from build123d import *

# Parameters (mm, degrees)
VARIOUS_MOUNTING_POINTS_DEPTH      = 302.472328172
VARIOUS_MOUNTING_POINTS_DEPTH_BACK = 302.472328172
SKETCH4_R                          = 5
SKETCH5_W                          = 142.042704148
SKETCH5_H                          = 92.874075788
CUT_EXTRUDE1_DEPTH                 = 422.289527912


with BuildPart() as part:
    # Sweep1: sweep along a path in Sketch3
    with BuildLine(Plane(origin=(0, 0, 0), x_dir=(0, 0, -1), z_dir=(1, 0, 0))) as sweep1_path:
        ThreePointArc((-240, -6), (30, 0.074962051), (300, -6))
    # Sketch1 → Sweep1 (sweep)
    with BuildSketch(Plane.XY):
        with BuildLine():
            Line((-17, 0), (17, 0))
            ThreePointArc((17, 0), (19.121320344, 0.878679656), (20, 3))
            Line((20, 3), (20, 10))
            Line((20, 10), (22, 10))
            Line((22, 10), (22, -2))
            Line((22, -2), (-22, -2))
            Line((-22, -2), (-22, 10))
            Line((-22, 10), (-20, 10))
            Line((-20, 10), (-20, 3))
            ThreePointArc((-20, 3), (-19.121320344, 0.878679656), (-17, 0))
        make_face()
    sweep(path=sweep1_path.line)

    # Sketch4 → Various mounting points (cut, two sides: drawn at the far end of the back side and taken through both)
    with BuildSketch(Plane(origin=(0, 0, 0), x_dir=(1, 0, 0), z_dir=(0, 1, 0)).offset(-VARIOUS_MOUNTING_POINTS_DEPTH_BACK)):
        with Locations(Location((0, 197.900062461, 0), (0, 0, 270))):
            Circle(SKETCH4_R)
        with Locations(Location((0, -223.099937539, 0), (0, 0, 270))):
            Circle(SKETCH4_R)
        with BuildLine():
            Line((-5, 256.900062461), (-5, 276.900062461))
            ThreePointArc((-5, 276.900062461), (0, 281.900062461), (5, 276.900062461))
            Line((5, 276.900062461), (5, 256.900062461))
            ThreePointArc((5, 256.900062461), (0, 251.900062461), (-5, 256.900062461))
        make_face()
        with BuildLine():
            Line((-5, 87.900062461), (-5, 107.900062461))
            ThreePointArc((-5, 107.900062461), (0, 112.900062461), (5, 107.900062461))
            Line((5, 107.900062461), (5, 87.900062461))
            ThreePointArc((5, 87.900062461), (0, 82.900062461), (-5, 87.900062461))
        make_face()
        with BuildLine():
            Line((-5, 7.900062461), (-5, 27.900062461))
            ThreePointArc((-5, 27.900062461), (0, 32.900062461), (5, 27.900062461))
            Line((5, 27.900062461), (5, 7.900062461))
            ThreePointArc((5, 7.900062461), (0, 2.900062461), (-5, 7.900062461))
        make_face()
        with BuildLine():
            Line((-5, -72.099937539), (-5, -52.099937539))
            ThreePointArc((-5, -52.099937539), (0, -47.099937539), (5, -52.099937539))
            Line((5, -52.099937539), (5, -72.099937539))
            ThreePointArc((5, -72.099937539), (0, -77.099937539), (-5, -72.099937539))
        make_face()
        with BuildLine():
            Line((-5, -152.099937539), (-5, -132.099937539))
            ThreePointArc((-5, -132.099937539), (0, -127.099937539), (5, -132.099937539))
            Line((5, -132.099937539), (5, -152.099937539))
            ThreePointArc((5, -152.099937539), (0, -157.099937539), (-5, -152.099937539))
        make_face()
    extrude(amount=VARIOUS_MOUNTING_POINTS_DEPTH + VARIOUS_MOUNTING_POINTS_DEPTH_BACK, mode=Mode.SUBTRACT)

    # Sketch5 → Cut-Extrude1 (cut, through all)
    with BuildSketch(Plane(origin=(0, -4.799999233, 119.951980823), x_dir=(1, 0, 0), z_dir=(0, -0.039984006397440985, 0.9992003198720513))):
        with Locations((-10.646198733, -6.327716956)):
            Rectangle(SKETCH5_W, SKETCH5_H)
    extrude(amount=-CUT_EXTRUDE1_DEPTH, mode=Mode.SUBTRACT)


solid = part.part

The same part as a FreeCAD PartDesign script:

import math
import FreeCAD as App
import Part
import Sketcher

V = App.Vector
Q = App.Units.Quantity


def add_polygon(sketch, points):
    """Adds a closed chain of lines whose ends are joined by coincident constraints."""
    first, n = sketch.GeometryCount, len(points)
    for a, b in zip(points, points[1:] + points[:1]):
        sketch.addGeometry(Part.LineSegment(App.Vector(*a, 0), App.Vector(*b, 0)), False)
    for i in range(n):
        sketch.addConstraint(Sketcher.Constraint("Coincident", first + i, 2, first + (i + 1) % n, 1))

doc = App.newDocument("Part")
body = doc.addObject("PartDesign::Body", "Body")

# Sketch on XY plane
sketch1 = doc.addObject("Sketcher::SketchObject", "Sketch")
body.addObject(sketch1)
sketch1.AttachmentSupport = (doc.XY_Plane, [""])
sketch1.MapMode = "FlatFace"
sketch1.addGeometry([
    Part.LineSegment(V(17, 0, 0), V(-17, 0, 0)),  # 0
    Part.ArcOfCircle(Part.Circle(V(-17, 3, 0), V(0, 0, 1), 3), math.radians(180), math.radians(270)),  # 1
    Part.LineSegment(V(-20, 3, 0), V(-20, 10, 0)),  # 2
    Part.LineSegment(V(-20, 10, 0), V(-22, 10, 0)),  # 3
    Part.LineSegment(V(-22, 10, 0), V(-22, -2, 0)),  # 4
    Part.LineSegment(V(-22, -2, 0), V(22, -2, 0)),  # 5
    Part.LineSegment(V(22, -2, 0), V(22, 10, 0)),  # 6
    Part.LineSegment(V(22, 10, 0), V(20, 10, 0)),  # 7
    Part.LineSegment(V(20, 10, 0), V(20, 3, 0)),  # 8
    Part.ArcOfCircle(Part.Circle(V(17, 3, 0), V(0, 0, 1), 3), math.radians(-90), math.radians(0)),  # 9
], False)
sketch1.addConstraint([
    Sketcher.Constraint("Tangent", 0, 2, 1, 2),
    Sketcher.Constraint("Tangent", 1, 1, 2, 1),
    Sketcher.Constraint("Coincident", 2, 2, 3, 1),
    Sketcher.Constraint("Coincident", 3, 2, 4, 1),
    Sketcher.Constraint("Coincident", 4, 2, 5, 1),
    Sketcher.Constraint("Coincident", 5, 2, 6, 1),
    Sketcher.Constraint("Coincident", 6, 2, 7, 1),
    Sketcher.Constraint("Coincident", 7, 2, 8, 1),
    Sketcher.Constraint("Tangent", 8, 2, 9, 2),
    Sketcher.Constraint("Tangent", 9, 1, 0, 1),
    Sketcher.Constraint("Horizontal", 0),
    Sketcher.Constraint("Vertical", 2),
    Sketcher.Constraint("Horizontal", 3),
    Sketcher.Constraint("Vertical", 4),
    Sketcher.Constraint("Horizontal", 5),
    Sketcher.Constraint("Vertical", 6),
    Sketcher.Constraint("Horizontal", 7),
    Sketcher.Constraint("Vertical", 8),
    Sketcher.Constraint("Equal", 1, 9),
    Sketcher.Constraint("Symmetric", 0, 2, 9, 1, -1, 1),
    Sketcher.Constraint("Symmetric", 3, 2, 6, 2, -2),
    Sketcher.Constraint("Radius", 1, Q("3 mm")),
    Sketcher.Constraint("DistanceX", 0, 2, 0, 1, Q("34 mm")),
    Sketcher.Constraint("DistanceX", 3, 2, 3, 1, Q("2 mm")),
    Sketcher.Constraint("DistanceY", 2, 1, 2, 2, Q("7 mm")),
    Sketcher.Constraint("DistanceY", 4, 2, 4, 1, Q("12 mm")),
])

# Sketch on YZ plane
sketch2 = doc.addObject("Sketcher::SketchObject", "Sketch001")
body.addObject(sketch2)
sketch2.AttachmentSupport = (doc.YZ_Plane, [""])
sketch2.MapMode = "FlatFace"
sketch2.addGeometry(Part.ArcOfCircle(Part.Circle(V(-6003, -30, 0), V(0, 0, 1), 6003), math.radians(-2.58), math.radians(2.58)), False)
sketch2.addConstraint([
    Sketcher.Constraint("DistanceX", 0, 3, -1, 1, Q("6003 mm")),
    Sketcher.Constraint("DistanceY", 0, 3, -1, 1, Q("30 mm")),
    Sketcher.Constraint("DistanceX", 0, 1, -1, 1, Q("6 mm")),
    Sketcher.Constraint("DistanceY", 0, 1, -1, 1, Q("300 mm")),
    Sketcher.Constraint("DistanceX", 0, 2, -1, 1, Q("6 mm")),
])
doc.recompute()

additivepipe = doc.addObject("PartDesign::AdditivePipe", "AdditivePipe")
body.addObject(additivepipe)
additivepipe.Profile = sketch1
additivepipe.Spine = (sketch2, ["Edge1"])

# Sketch on XZ plane
sketch3 = doc.addObject("Sketcher::SketchObject", "Sketch002")
body.addObject(sketch3)
sketch3.AttachmentSupport = (doc.XZ_Plane, [""])
sketch3.MapMode = "FlatFace"
sketch3.addGeometry([
    Part.Circle(V(0, -198, 0), V(0, 0, 1), 5),  # 0
    Part.Circle(V(0, 223, 0), V(0, 0, 1), 5),  # 1
    Part.LineSegment(V(-5, -277, 0), V(-5, -257, 0)),  # 2
    Part.ArcOfCircle(Part.Circle(V(0, -257, 0), V(0, 0, 1), 5), math.radians(0), math.radians(180)),  # 3
    Part.LineSegment(V(5, -257, 0), V(5, -277, 0)),  # 4
    Part.ArcOfCircle(Part.Circle(V(0, -277, 0), V(0, 0, 1), 5), math.radians(180), math.radians(360)),  # 5
    Part.LineSegment(V(-5, -108, 0), V(-5, -88, 0)),  # 6
    Part.ArcOfCircle(Part.Circle(V(0, -88, 0), V(0, 0, 1), 5), math.radians(0), math.radians(180)),  # 7
    Part.LineSegment(V(5, -88, 0), V(5, -108, 0)),  # 8
    Part.ArcOfCircle(Part.Circle(V(0, -108, 0), V(0, 0, 1), 5), math.radians(180), math.radians(360)),  # 9
    Part.LineSegment(V(-5, -28, 0), V(-5, -8, 0)),  # 10
    Part.ArcOfCircle(Part.Circle(V(0, -8, 0), V(0, 0, 1), 5), math.radians(0), math.radians(180)),  # 11
    Part.LineSegment(V(5, -8, 0), V(5, -28, 0)),  # 12
    Part.ArcOfCircle(Part.Circle(V(0, -28, 0), V(0, 0, 1), 5), math.radians(180), math.radians(360)),  # 13
    Part.LineSegment(V(-5, 52, 0), V(-5, 72, 0)),  # 14
    Part.ArcOfCircle(Part.Circle(V(0, 72, 0), V(0, 0, 1), 5), math.radians(0), math.radians(180)),  # 15
    Part.LineSegment(V(5, 72, 0), V(5, 52, 0)),  # 16
    Part.ArcOfCircle(Part.Circle(V(0, 52, 0), V(0, 0, 1), 5), math.radians(180), math.radians(360)),  # 17
    Part.LineSegment(V(-5, 132, 0), V(-5, 152, 0)),  # 18
    Part.ArcOfCircle(Part.Circle(V(0, 152, 0), V(0, 0, 1), 5), math.radians(0), math.radians(180)),  # 19
    Part.LineSegment(V(5, 152, 0), V(5, 132, 0)),  # 20
    Part.ArcOfCircle(Part.Circle(V(0, 132, 0), V(0, 0, 1), 5), math.radians(180), math.radians(360)),  # 21
], False)
sketch3.addConstraint([
    Sketcher.Constraint("Tangent", 2, 2, 3, 2),
    Sketcher.Constraint("Tangent", 3, 1, 4, 1),
    Sketcher.Constraint("Tangent", 4, 2, 5, 2),
    Sketcher.Constraint("Tangent", 5, 1, 2, 1),
    Sketcher.Constraint("Tangent", 6, 2, 7, 2),
    Sketcher.Constraint("Tangent", 7, 1, 8, 1),
    Sketcher.Constraint("Tangent", 8, 2, 9, 2),
    Sketcher.Constraint("Tangent", 9, 1, 6, 1),
    Sketcher.Constraint("Tangent", 10, 2, 11, 2),
    Sketcher.Constraint("Tangent", 11, 1, 12, 1),
    Sketcher.Constraint("Tangent", 12, 2, 13, 2),
    Sketcher.Constraint("Tangent", 13, 1, 10, 1),
    Sketcher.Constraint("Tangent", 14, 2, 15, 2),
    Sketcher.Constraint("Tangent", 15, 1, 16, 1),
    Sketcher.Constraint("Tangent", 16, 2, 17, 2),
    Sketcher.Constraint("Tangent", 17, 1, 14, 1),
    Sketcher.Constraint("Tangent", 18, 2, 19, 2),
    Sketcher.Constraint("Tangent", 19, 1, 20, 1),
    Sketcher.Constraint("Tangent", 20, 2, 21, 2),
    Sketcher.Constraint("Tangent", 21, 1, 18, 1),
    Sketcher.Constraint("Vertical", 2),
    Sketcher.Constraint("Vertical", 4),
    Sketcher.Constraint("Vertical", 6),
    Sketcher.Constraint("Vertical", 8),
    Sketcher.Constraint("Vertical", 10),
    Sketcher.Constraint("Vertical", 12),
    Sketcher.Constraint("Vertical", 14),
    Sketcher.Constraint("Vertical", 16),
    Sketcher.Constraint("Vertical", 18),
    Sketcher.Constraint("Vertical", 20),
    Sketcher.Constraint("Equal", 0, 1),
    Sketcher.Constraint("Equal", 1, 3),
    Sketcher.Constraint("Equal", 5, 7),
    Sketcher.Constraint("Equal", 9, 11),
    Sketcher.Constraint("Equal", 13, 15),
    Sketcher.Constraint("Equal", 17, 19),
    Sketcher.Constraint("PointOnObject", 0, 3, -2),
    Sketcher.Constraint("PointOnObject", 1, 3, -2),
    Sketcher.Constraint("PointOnObject", 3, 3, -2),
    Sketcher.Constraint("PointOnObject", 7, 3, -2),
    Sketcher.Constraint("PointOnObject", 11, 3, -2),
    Sketcher.Constraint("PointOnObject", 15, 3, -2),
    Sketcher.Constraint("PointOnObject", 19, 3, -2),
    Sketcher.Constraint("Equal", 4, 6),
    Sketcher.Constraint("Equal", 8, 10),
    Sketcher.Constraint("Equal", 12, 14),
    Sketcher.Constraint("Equal", 16, 18),
    Sketcher.Constraint("Diameter", 0, Q("10 mm")),
    Sketcher.Constraint("DistanceY", 2, 1, 2, 2, Q("20 mm")),
    Sketcher.Constraint("DistanceY", 0, 3, 1, 3, Q("421 mm")),
    Sketcher.Constraint("DistanceY", 3, 3, 0, 3, Q("59 mm")),
    Sketcher.Constraint("DistanceY", 0, 3, 7, 3, Q("110 mm")),
    Sketcher.Constraint("DistanceY", 7, 3, 11, 3, Q("80 mm")),
    Sketcher.Constraint("DistanceY", 11, 3, 15, 3, Q("80 mm")),
    Sketcher.Constraint("DistanceY", 19, 3, 1, 3, Q("71 mm")),
    Sketcher.Constraint("DistanceY", 0, 3, -1, 1, Q("197.900062 mm")),
])
pocket1 = doc.addObject("PartDesign::Pocket", "Pocket")
body.addObject(pocket1)
pocket1.Profile = sketch3
pocket1.Type = "ThroughAll"
pocket1.Midplane = True

# Sketch on an angled plane
sketch4 = doc.addObject("Sketcher::SketchObject", "Sketch003")
body.addObject(sketch4)
sketch4.Placement = App.Placement(V(0, -4.799999, 119.951981), App.Rotation(V(1, 0, 0), V(0, 0.99920032, 0.039984006), V(0, -0.039984006, 0.99920032), "ZXY"))
add_polygon(sketch4, [(-82, 40), (-82, -53), (60, -53), (60, 40)])  # lines 0-3
sketch4.addConstraint([
    Sketcher.Constraint("Vertical", 0),
    Sketcher.Constraint("Horizontal", 1),
    Sketcher.Constraint("Vertical", 2),
    Sketcher.Constraint("Horizontal", 3),
    Sketcher.Constraint("DistanceX", 1, 1, 1, 2, Q("142.042704 mm")),
    Sketcher.Constraint("DistanceY", 0, 2, 0, 1, Q("92.874076 mm")),
    Sketcher.Constraint("DistanceX", 0, 2, -1, 1, Q("81.667551 mm")),
    Sketcher.Constraint("DistanceY", -1, 1, 2, 2, Q("40.109321 mm")),
])
pocket2 = doc.addObject("PartDesign::Pocket", "Pocket001")
body.addObject(pocket2)
pocket2.Profile = sketch4
pocket2.Type = "ThroughAll"

doc.recompute()
